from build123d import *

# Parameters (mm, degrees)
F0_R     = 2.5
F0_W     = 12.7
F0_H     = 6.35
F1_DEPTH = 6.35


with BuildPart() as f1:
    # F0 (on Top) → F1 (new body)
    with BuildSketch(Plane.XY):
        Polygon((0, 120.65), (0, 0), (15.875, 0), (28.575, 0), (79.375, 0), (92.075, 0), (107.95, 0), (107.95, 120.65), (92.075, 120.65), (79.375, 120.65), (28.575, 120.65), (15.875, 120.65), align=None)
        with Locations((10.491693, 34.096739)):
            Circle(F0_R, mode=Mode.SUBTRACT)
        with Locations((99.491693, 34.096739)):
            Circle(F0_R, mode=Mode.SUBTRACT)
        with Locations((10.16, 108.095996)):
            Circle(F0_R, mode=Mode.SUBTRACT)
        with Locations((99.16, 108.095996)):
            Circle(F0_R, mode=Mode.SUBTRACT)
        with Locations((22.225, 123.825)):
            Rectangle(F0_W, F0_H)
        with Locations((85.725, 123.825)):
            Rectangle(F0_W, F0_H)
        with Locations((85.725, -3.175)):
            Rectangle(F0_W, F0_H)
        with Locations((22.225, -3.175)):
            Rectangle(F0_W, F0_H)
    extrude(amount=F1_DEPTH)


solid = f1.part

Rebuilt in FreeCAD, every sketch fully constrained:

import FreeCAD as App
import Part
import Sketcher
from FreeCAD import Vector
Q = App.Units.Quantity


def add_polygon(sketch, points):
    """Adds a closed chain of lines whose ends are joined by coincident constraints."""
    first, n = sketch.GeometryCount, len(points)
    for a, b in zip(points, points[1:] + points[:1]):
        sketch.addGeometry(Part.LineSegment(App.Vector(*a, 0), App.Vector(*b, 0)), False)
    for i in range(n):
        sketch.addConstraint(Sketcher.Constraint("Coincident", first + i, 2, first + (i + 1) % n, 1))

doc = App.newDocument("Part")
params = doc.addObject("Spreadsheet::Sheet", "Params")
for row, (alias, value) in enumerate([
    ("sketch1_width", "2 in"),
    ("sketch1_width2", "0.5 in"),
    ("sketch1_height", "4.75 in"),
    ("sketch1_width3", "0.625 in"),
    ("pad1_length", "0.25 in"),
], start=1):
    params.set(f"A{row}", alias)
    params.set(f"B{row}", "=" + value)
    params.setAlias(f"B{row}", alias)

body = doc.addObject("PartDesign::Body", "Body")

# Sketch on XY plane
sketch1 = doc.addObject("Sketcher::SketchObject", "Sketch")
body.addObject(sketch1)
sketch1.AttachmentSupport = (doc.XY_Plane, [""])
sketch1.MapMode = "FlatFace"
add_polygon(sketch1, [(0, 120.7), (0, 0), (15.9, 0), (15.9, -6.3), (28.6, -6.3), (28.6, 0), (79.4, 0), (79.4, -6.3), (92.1, -6.3), (92.1, 0), (108, 0), (108, 120.7), (92.1, 120.7), (92.1, 127), (79.4, 127), (79.4, 120.7), (28.6, 120.7), (28.6, 127), (15.9, 127), (15.9, 120.7)])  # lines 0-19
sketch1.addGeometry(Part.Circle(Vector(10.5, 34.1, 0), Vector(0, 0, 1), 2.5), False)  # 20
sketch1.addGeometry(Part.Circle(Vector(99.5, 34.1, 0), Vector(0, 0, 1), 2.5), False)  # 21
sketch1.addGeometry(Part.Circle(Vector(10.2, 108.1, 0), Vector(0, 0, 1), 2.5), False)  # 22
sketch1.addGeometry(Part.Circle(Vector(99.2, 108.1, 0), Vector(0, 0, 1), 2.5), False)  # 23
sketch1.addConstraint(Sketcher.Constraint("Vertical", 0))
sketch1.addConstraint(Sketcher.Constraint("Horizontal", 1))
sketch1.addConstraint(Sketcher.Constraint("Vertical", 2))
sketch1.addConstraint(Sketcher.Constraint("Horizontal", 3))
sketch1.addConstraint(Sketcher.Constraint("Vertical", 4))
sketch1.addConstraint(Sketcher.Constraint("Horizontal", 5))
sketch1.addConstraint(Sketcher.Constraint("Vertical", 6))
sketch1.addConstraint(Sketcher.Constraint("Horizontal", 7))
sketch1.addConstraint(Sketcher.Constraint("Vertical", 8))
sketch1.addConstraint(Sketcher.Constraint("Horizontal", 9))
sketch1.addConstraint(Sketcher.Constraint("Vertical", 10))
sketch1.addConstraint(Sketcher.Constraint("Horizontal", 11))
sketch1.addConstraint(Sketcher.Constraint("Vertical", 12))
sketch1.addConstraint(Sketcher.Constraint("Horizontal", 13))
sketch1.addConstraint(Sketcher.Constraint("Vertical", 14))
sketch1.addConstraint(Sketcher.Constraint("Horizontal", 15))
sketch1.addConstraint(Sketcher.Constraint("Vertical", 16))
sketch1.addConstraint(Sketcher.Constraint("Horizontal", 17))
sketch1.addConstraint(Sketcher.Constraint("Vertical", 18))
sketch1.addConstraint(Sketcher.Constraint("Horizontal", 19))
sketch1.addConstraint(Sketcher.Constraint("Coincident", 0, 2, -1, 1))
sketch1.addConstraint(Sketcher.Constraint("Equal", 20, 21))
sketch1.addConstraint(Sketcher.Constraint("Equal", 21, 22))
sketch1.addConstraint(Sketcher.Constraint("Equal", 22, 23))
sketch1.addConstraint(Sketcher.Constraint("PointOnObject", 4, 2, -1))
sketch1.addConstraint(Sketcher.Constraint("PointOnObject", 8, 2, -1))
sketch1.addConstraint(Sketcher.Constraint("Horizontal", 20, 3, 21, 3))
sketch1.addConstraint(Sketcher.Constraint("Horizontal", 22, 3, 23, 3))
sketch1.addConstraint(Sketcher.Constraint("Horizontal", 3, 2, 6, 2))
sketch1.addConstraint(Sketcher.Constraint("Horizontal", 11, 2, 14, 2))
sketch1.addConstraint(Sketcher.Constraint("Horizontal", 13, 2, 16, 2))
sketch1.addConstraint(Sketcher.Constraint("Horizontal", 15, 2, 18, 2))
sketch1.addConstraint(Sketcher.Constraint("Vertical", 8, 2, 11, 2))
sketch1.addConstraint(Sketcher.Constraint("Vertical", 6, 2, 13, 2))
sketch1.addConstraint(Sketcher.Constraint("Vertical", 4, 2, 15, 2))
sketch1.addConstraint(Sketcher.Constraint("Vertical", 2, 2, 17, 2))
sketch1.addConstraint(Sketcher.Constraint("Equal", 3, 7))
sketch1.addConstraint(Sketcher.Constraint("Equal", 1, 9))
sketch1.addConstraint(Sketcher.Constraint("Equal", 8, 12))
sketch1.addConstraint(Sketcher.Constraint("DistanceX", 5, 1, 5, 2, Q("2 in")))
sketch1.addConstraint(Sketcher.Constraint("DistanceX", 3, 1, 3, 2, Q("0.5 in")))
sketch1.addConstraint(Sketcher.Constraint("DistanceY", -1, 1, 12, 2, Q("5 in")))
sketch1.addConstraint(Sketcher.Constraint("DistanceY", 0, 2, 0, 1, Q("4.75 in")))
sketch1.addConstraint(Sketcher.Constraint("DistanceX", -1, 1, 22, 3, Q("0.4 in")))
sketch1.addConstraint(Sketcher.Constraint("Diameter", 20, 5.0))
sketch1.addConstraint(Sketcher.Constraint("DistanceX", 1, 1, 1, 2, Q("0.625 in")))
sketch1.addConstraint(Sketcher.Constraint("DistanceX", -1, 1, 23, 3, 99.16))
sketch1.addConstraint(Sketcher.Constraint("DistanceX", 20, 3, 21, 3, 89.0))
sketch1.addConstraint(Sketcher.Constraint("DistanceY", -1, 1, 20, 3, 34.096739))
sketch1.addConstraint(Sketcher.Constraint("DistanceX", -1, 1, 20, 3, 10.491693))
sketch1.addConstraint(Sketcher.Constraint("DistanceY", -1, 1, 22, 3, 108.095996))
sketch1.setExpression("Constraints[59]", "Params.sketch1_width")
sketch1.setExpression("Constraints[60]", "Params.sketch1_width2")
sketch1.setExpression("Constraints[62]", "Params.sketch1_height")
sketch1.setExpression("Constraints[65]", "Params.sketch1_width3")
pad1 = doc.addObject("PartDesign::Pad", "Pad")
body.addObject(pad1)
pad1.Profile = sketch1
pad1.setExpression("Length", "Params.pad1_length")

doc.recompute()
